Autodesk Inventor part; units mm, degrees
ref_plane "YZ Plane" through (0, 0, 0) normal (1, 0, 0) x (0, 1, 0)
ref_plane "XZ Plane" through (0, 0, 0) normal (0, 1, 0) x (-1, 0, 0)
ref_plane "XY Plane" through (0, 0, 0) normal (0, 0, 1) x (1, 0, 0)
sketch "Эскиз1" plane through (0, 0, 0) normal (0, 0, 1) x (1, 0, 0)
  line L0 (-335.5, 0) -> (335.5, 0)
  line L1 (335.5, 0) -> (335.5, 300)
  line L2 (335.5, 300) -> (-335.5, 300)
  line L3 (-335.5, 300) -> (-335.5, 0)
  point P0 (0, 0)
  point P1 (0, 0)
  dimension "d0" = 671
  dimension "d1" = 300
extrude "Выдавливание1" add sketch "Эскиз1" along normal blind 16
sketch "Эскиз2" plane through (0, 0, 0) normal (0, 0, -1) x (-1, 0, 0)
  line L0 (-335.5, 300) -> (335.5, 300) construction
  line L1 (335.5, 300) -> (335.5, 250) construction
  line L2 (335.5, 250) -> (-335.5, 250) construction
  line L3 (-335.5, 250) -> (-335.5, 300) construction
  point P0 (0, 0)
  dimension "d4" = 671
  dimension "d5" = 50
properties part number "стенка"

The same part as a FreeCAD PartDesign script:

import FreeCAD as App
import Part
import Sketcher
Q = App.Units.Quantity


def add_polygon(sketch, points):
    """Adds a closed chain of lines whose ends are joined by coincident constraints."""
    first, n = sketch.GeometryCount, len(points)
    for a, b in zip(points, points[1:] + points[:1]):
        sketch.addGeometry(Part.LineSegment(App.Vector(*a, 0), App.Vector(*b, 0)), False)
    for i in range(n):
        sketch.addConstraint(Sketcher.Constraint("Coincident", first + i, 2, first + (i + 1) % n, 1))

doc = App.newDocument("Part")
params = doc.addObject("Spreadsheet::Sheet", "Params")
for row, (alias, value) in enumerate([
    ("sketch1_width", "671 mm"),
    ("sketch1_height", "300 mm"),
    ("pad1_length", "16 mm"),
], start=1):
    params.set(f"A{row}", alias)
    params.set(f"B{row}", "=" + value)
    params.setAlias(f"B{row}", alias)

body = doc.addObject("PartDesign::Body", "Body")

# Sketch on XY plane
sketch1 = body.newObject("Sketcher::SketchObject", "Sketch")
sketch1.AttachmentSupport = (doc.getObject("XY_Plane"), [""])
sketch1.MapMode = "FlatFace"
add_polygon(sketch1, [(-336, 300), (-336, 0), (336, 0), (336, 300)])  # lines 0-3
sketch1.addConstraint([
    Sketcher.Constraint("Vertical", 0),
    Sketcher.Constraint("Horizontal", 1),
    Sketcher.Constraint("Vertical", 2),
    Sketcher.Constraint("Horizontal", 3),
    Sketcher.Constraint("Symmetric", 0, 2, 1, 2, -1, 1),
    Sketcher.Constraint("DistanceX", 1, 1, 1, 2, Q("671 mm")),
    Sketcher.Constraint("DistanceY", 0, 2, 0, 1, Q("300 mm")),
])
sketch1.setExpression("Constraints[9]", "Params.sketch1_width")
sketch1.setExpression("Constraints[10]", "Params.sketch1_height")
pad1 = body.newObject("PartDesign::Pad", "Pad")
pad1.Profile = sketch1
pad1.setExpression("Length", "Params.pad1_length")

doc.recompute()
